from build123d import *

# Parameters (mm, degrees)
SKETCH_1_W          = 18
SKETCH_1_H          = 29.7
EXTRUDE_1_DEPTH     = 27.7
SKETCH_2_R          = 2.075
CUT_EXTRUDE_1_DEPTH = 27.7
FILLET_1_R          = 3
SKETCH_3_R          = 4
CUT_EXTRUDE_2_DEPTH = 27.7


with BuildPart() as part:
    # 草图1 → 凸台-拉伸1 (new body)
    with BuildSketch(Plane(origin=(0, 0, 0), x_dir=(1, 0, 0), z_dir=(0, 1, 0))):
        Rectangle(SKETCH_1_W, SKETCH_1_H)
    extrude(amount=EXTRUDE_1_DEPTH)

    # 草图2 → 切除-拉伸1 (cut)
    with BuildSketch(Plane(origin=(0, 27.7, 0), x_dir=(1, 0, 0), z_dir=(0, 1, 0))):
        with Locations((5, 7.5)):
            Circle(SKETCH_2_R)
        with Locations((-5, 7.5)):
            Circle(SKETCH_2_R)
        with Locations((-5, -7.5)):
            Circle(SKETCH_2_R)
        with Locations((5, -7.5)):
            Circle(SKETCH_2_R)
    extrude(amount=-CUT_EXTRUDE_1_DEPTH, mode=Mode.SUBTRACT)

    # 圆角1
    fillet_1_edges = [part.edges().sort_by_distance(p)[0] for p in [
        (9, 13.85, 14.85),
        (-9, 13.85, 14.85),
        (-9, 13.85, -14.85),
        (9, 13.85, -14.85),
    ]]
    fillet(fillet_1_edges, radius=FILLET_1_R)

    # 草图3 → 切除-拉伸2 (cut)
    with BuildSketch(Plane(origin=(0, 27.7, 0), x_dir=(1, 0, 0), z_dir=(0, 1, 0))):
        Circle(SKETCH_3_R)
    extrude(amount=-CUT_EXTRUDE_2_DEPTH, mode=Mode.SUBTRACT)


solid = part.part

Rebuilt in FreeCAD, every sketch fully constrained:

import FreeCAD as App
import Part
import Sketcher
Q = App.Units.Quantity


def edges_at(feature, points):
    """Names of the edges that pass closest to the given points."""
    edges = feature.Shape.Edges
    near = lambda p: min(range(len(edges)), key=lambda i: edges[i].distToShape(Part.Vertex(*p))[0])
    return sorted({f"Edge{near(p) + 1}" for p in points})

doc = App.newDocument("Part")
params = doc.addObject("Spreadsheet::Sheet", "Params")
for row, (alias, value) in enumerate([
    ("sketch1_width", "18 mm"),
    ("sketch1_height", "29.7 mm"),
    ("pad1_length", "27.7 mm"),
    ("sketch2_diameter", "4.15 mm"),
    ("pocket1_length", "27.7 mm"),
    ("fillet_radius", "3 mm"),
    ("sketch3_diameter", "8 mm"),
    ("pocket2_length", "27.7 mm"),
], start=1):
    params.set(f"A{row}", alias)
    params.set(f"B{row}", "=" + value)
    params.setAlias(f"B{row}", alias)

body = doc.addObject("PartDesign::Body", "Body")

# Sketch on XZ plane
sketch1 = body.newObject("Sketcher::SketchObject", "Sketch")
sketch1.AttachmentSupport = (doc.getObject("XZ_Plane"), [""])
sketch1.MapMode = "FlatFace"
sketch1.addGeometry([
    Part.LineSegment(App.Vector(-9, -15, 0), App.Vector(-9, 15, 0)),
    Part.LineSegment(App.Vector(-9, 15, 0), App.Vector(9, 15, 0)),
    Part.LineSegment(App.Vector(9, 15, 0), App.Vector(9, -15, 0)),
    Part.LineSegment(App.Vector(9, -15, 0), App.Vector(-9, -15, 0)),
], False)
sketch1.addConstraint([
    Sketcher.Constraint("Coincident", 0, 2, 1, 1),
    Sketcher.Constraint("Coincident", 1, 2, 2, 1),
    Sketcher.Constraint("Coincident", 2, 2, 3, 1),
    Sketcher.Constraint("Coincident", 3, 2, 0, 1),
    Sketcher.Constraint("Vertical", 0),
    Sketcher.Constraint("Horizontal", 1),
    Sketcher.Constraint("Vertical", 2),
    Sketcher.Constraint("Horizontal", 3),
    Sketcher.Constraint("Symmetric", 0, 2, 2, 2, -1, 1),
    Sketcher.Constraint("DistanceX", 1, 1, 1, 2, Q("18 mm")),
    Sketcher.Constraint("DistanceY", 0, 1, 0, 2, Q("29.7 mm")),
])
sketch1.setExpression("Constraints[9]", "Params.sketch1_width")
sketch1.setExpression("Constraints[10]", "Params.sketch1_height")
pad1 = body.newObject("PartDesign::Pad", "Pad")
pad1.Profile = sketch1
pad1.setExpression("Length", "Params.pad1_length")
pad1.Reversed = True

# Sketch on XZ plane
sketch2 = body.newObject("Sketcher::SketchObject", "Sketch001")
sketch2.AttachmentSupport = (doc.getObject("XZ_Plane"), [""])
sketch2.MapMode = "FlatFace"
sketch2.AttachmentOffset = App.Placement(App.Vector(0, 0, -27.7), App.Rotation())
sketch2.addGeometry([
    Part.Circle(App.Vector(5, -7.5, 0), App.Vector(0, 0, 1), 2.1),
    Part.Circle(App.Vector(-5, -7.5, 0), App.Vector(0, 0, 1), 2.1),
    Part.Circle(App.Vector(-5, 7.5, 0), App.Vector(0, 0, 1), 2.1),
    Part.Circle(App.Vector(5, 7.5, 0), App.Vector(0, 0, 1), 2.1),
], False)
sketch2.addConstraint([
    Sketcher.Constraint("Equal", 0, 1),
    Sketcher.Constraint("Equal", 1, 2),
    Sketcher.Constraint("Equal", 2, 3),
    Sketcher.Constraint("Symmetric", 0, 3, 2, 3, -1, 1),
    Sketcher.Constraint("Symmetric", 1, 3, 3, 3, -1, 1),
    Sketcher.Constraint("Symmetric", 0, 3, 1, 3, -2),
    Sketcher.Constraint("Diameter", 0, Q("4.15 mm")),
    Sketcher.Constraint("DistanceX", -1, 1, 0, 3, Q("5 mm")),
    Sketcher.Constraint("DistanceY", 1, 3, 2, 3, Q("15 mm")),
])
sketch2.setExpression("Constraints[6]", "Params.sketch2_diameter")
pocket1 = body.newObject("PartDesign::Pocket", "Pocket")
pocket1.Profile = sketch2
pocket1.setExpression("Length", "Params.pocket1_length")
pocket1.Reversed = True
doc.recompute()

fillet = body.newObject("PartDesign::Fillet", "Fillet")
fillet.Base = (pocket1, edges_at(pocket1, [
    (9, 13.85, 14.85),
    (-9, 13.85, 14.85),
    (-9, 13.85, -14.85),
    (9, 13.85, -14.85),
]))
fillet.setExpression("Radius", "Params.fillet_radius")

# Sketch on XZ plane
sketch3 = body.newObject("Sketcher::SketchObject", "Sketch002")
sketch3.AttachmentSupport = (doc.getObject("XZ_Plane"), [""])
sketch3.MapMode = "FlatFace"
sketch3.AttachmentOffset = App.Placement(App.Vector(0, 0, -27.7), App.Rotation())
sketch3.addGeometry(Part.Circle(App.Vector(0, 0, 0), App.Vector(0, 0, 1), 4), False)
sketch3.addConstraint([
    Sketcher.Constraint("Coincident", 0, 3, -1, 1),
    Sketcher.Constraint("Diameter", 0, Q("8 mm")),
])
sketch3.setExpression("Constraints[1]", "Params.sketch3_diameter")
pocket2 = body.newObject("PartDesign::Pocket", "Pocket001")
pocket2.Profile = sketch3
pocket2.setExpression("Length", "Params.pocket2_length")
pocket2.Reversed = True

doc.recompute()
